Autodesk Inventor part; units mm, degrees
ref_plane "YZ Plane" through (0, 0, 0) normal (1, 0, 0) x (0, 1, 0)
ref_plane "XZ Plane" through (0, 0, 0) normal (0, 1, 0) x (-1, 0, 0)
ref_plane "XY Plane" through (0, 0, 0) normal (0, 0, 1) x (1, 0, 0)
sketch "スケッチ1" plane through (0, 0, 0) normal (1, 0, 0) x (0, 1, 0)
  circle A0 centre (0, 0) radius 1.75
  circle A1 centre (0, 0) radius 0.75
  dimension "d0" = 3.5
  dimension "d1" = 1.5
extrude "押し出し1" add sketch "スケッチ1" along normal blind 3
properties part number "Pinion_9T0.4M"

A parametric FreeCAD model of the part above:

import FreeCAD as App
import Part
import Sketcher
from FreeCAD import Vector
Q = App.Units.Quantity

doc = App.newDocument("Part")
body = doc.addObject("PartDesign::Body", "Body")

sketch1 = body.newObject("Sketcher::SketchObject", "Sketch")
sketch1.AttachmentSupport = (doc.getObject("YZ_Plane"), [""])
sketch1.MapMode = "FlatFace"
sketch1.addGeometry([
    Part.Circle(Vector(0, 0, 0), Vector(0, 0, 1), 1.8),
    Part.Circle(Vector(0, 0, 0), Vector(0, 0, 1), 0.8),
], False)
sketch1.addConstraint([
    Sketcher.Constraint("Coincident", 0, 3, -1, 1),
    Sketcher.Constraint("Coincident", 1, 3, -1, 1),
    Sketcher.Constraint("Diameter", 0, Q("3.5 mm")),
    Sketcher.Constraint("Diameter", 1, Q("1.5 mm")),
])
pad1 = body.newObject("PartDesign::Pad", "Pad")
pad1.Profile = sketch1
pad1.Length = 3

doc.recompute()
